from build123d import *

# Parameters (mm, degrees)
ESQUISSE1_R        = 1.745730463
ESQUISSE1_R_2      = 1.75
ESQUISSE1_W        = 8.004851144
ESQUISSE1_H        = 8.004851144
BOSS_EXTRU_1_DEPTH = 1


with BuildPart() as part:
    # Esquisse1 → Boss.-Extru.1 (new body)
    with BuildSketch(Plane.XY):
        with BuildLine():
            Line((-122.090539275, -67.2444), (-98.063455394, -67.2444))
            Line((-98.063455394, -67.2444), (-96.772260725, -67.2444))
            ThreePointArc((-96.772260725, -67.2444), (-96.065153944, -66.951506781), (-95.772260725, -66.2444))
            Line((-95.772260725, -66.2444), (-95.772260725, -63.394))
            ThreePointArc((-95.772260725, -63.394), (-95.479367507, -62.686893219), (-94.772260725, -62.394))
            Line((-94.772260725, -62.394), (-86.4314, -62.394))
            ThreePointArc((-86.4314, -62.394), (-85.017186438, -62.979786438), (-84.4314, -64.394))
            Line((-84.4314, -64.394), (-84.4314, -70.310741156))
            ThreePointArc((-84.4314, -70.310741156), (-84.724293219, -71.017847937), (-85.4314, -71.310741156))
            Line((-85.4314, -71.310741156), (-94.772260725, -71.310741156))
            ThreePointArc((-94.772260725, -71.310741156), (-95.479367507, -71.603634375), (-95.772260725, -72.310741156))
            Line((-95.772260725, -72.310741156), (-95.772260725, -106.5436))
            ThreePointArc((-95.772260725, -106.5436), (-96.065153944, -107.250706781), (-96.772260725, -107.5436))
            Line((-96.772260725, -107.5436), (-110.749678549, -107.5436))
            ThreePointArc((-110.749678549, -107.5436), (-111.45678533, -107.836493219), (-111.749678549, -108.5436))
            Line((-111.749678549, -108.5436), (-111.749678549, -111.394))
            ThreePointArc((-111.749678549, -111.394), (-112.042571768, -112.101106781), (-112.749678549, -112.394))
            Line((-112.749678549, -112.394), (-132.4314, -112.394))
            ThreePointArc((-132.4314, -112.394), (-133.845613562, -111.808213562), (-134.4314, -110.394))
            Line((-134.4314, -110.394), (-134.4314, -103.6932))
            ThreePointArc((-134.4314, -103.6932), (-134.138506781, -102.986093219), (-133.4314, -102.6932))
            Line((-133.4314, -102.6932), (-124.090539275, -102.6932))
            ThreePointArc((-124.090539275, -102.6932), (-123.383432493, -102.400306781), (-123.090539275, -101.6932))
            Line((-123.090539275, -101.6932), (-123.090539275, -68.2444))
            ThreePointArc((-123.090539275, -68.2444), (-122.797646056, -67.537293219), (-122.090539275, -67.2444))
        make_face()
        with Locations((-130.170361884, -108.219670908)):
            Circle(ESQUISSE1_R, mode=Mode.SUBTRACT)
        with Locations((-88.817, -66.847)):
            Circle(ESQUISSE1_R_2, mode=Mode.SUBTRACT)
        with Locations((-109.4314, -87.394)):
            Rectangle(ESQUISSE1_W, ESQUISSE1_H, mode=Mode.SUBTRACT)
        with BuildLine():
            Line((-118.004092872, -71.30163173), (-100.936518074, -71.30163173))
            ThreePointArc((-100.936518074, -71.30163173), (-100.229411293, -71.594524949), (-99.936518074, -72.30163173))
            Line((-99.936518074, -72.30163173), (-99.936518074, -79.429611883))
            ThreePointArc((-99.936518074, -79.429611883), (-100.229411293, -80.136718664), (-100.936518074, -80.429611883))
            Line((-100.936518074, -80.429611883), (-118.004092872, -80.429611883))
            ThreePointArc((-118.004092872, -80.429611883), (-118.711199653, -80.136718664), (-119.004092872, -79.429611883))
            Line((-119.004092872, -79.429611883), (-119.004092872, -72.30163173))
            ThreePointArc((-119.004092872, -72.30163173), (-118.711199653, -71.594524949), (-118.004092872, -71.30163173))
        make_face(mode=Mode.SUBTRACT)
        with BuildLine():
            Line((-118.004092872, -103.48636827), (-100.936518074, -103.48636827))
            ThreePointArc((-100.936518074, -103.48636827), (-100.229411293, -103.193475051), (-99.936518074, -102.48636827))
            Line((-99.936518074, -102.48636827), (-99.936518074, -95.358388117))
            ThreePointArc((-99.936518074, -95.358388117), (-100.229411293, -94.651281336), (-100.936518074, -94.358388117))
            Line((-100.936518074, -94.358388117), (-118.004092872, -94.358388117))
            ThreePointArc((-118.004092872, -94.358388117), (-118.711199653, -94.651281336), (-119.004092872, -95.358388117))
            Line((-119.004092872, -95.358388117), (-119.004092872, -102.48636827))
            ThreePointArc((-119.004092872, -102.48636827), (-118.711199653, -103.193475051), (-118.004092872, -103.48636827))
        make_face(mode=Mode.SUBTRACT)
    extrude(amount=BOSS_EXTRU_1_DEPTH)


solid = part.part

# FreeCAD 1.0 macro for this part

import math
import FreeCAD as App
import Part
import Sketcher


def add_polygon(sketch, points):
    """Adds a closed chain of lines whose ends are joined by coincident constraints."""
    first, n = sketch.GeometryCount, len(points)
    for a, b in zip(points, points[1:] + points[:1]):
        sketch.addGeometry(Part.LineSegment(App.Vector(*a, 0), App.Vector(*b, 0)), False)
    for i in range(n):
        sketch.addConstraint(Sketcher.Constraint("Coincident", first + i, 2, first + (i + 1) % n, 1))

doc = App.newDocument("Part")
body = doc.addObject("PartDesign::Body", "Body")

sketch1 = body.newObject("Sketcher::SketchObject", "Sketch")
sketch1.AttachmentSupport = (doc.getObject("XY_Plane"), [""])
sketch1.MapMode = "FlatFace"
sketch1.addGeometry(Part.LineSegment(App.Vector(-96.8, -67.2, 0), App.Vector(-122.1, -67.2, 0)), False)
sketch1.addGeometry(Part.ArcOfCircle(Part.Circle(App.Vector(-122.1, -68.2, 0), App.Vector(0, 0, 1), 1), math.radians(90), math.radians(180)), False)
sketch1.addGeometry(Part.LineSegment(App.Vector(-123.1, -68.2, 0), App.Vector(-123.1, -101.7, 0)), False)
sketch1.addGeometry(Part.ArcOfCircle(Part.Circle(App.Vector(-124.1, -101.7, 0), App.Vector(0, 0, 1), 1), math.radians(-90), math.radians(0)), False)
sketch1.addGeometry(Part.LineSegment(App.Vector(-124.1, -102.7, 0), App.Vector(-133.4, -102.7, 0)), False)
sketch1.addGeometry(Part.ArcOfCircle(Part.Circle(App.Vector(-133.4, -103.7, 0), App.Vector(0, 0, 1), 1), math.radians(90), math.radians(180)), False)
sketch1.addGeometry(Part.LineSegment(App.Vector(-134.4, -103.7, 0), App.Vector(-134.4, -110.4, 0)), False)
sketch1.addGeometry(Part.ArcOfCircle(Part.Circle(App.Vector(-132.4, -110.4, 0), App.Vector(0, 0, 1), 2), math.radians(-180), math.radians(-90)), False)
sketch1.addGeometry(Part.LineSegment(App.Vector(-132.4, -112.4, 0), App.Vector(-112.7, -112.4, 0)), False)
sketch1.addGeometry(Part.ArcOfCircle(Part.Circle(App.Vector(-112.7, -111.4, 0), App.Vector(0, 0, 1), 1), math.radians(-90), math.radians(0)), False)
sketch1.addGeometry(Part.LineSegment(App.Vector(-111.7, -111.4, 0), App.Vector(-111.7, -108.5, 0)), False)
sketch1.addGeometry(Part.ArcOfCircle(Part.Circle(App.Vector(-110.7, -108.5, 0), App.Vector(0, 0, 1), 1), math.radians(90), math.radians(180)), False)
sketch1.addGeometry(Part.LineSegment(App.Vector(-110.7, -107.5, 0), App.Vector(-96.8, -107.5, 0)), False)
sketch1.addGeometry(Part.ArcOfCircle(Part.Circle(App.Vector(-96.8, -106.5, 0), App.Vector(0, 0, 1), 1), math.radians(-90), math.radians(0)), False)
sketch1.addGeometry(Part.LineSegment(App.Vector(-95.8, -106.5, 0), App.Vector(-95.8, -72.3, 0)), False)
sketch1.addGeometry(Part.ArcOfCircle(Part.Circle(App.Vector(-94.8, -72.3, 0), App.Vector(0, 0, 1), 1), math.radians(90), math.radians(180)), False)
sketch1.addGeometry(Part.LineSegment(App.Vector(-94.8, -71.3, 0), App.Vector(-85.4, -71.3, 0)), False)
sketch1.addGeometry(Part.ArcOfCircle(Part.Circle(App.Vector(-85.4, -70.3, 0), App.Vector(0, 0, 1), 1), math.radians(-90), math.radians(0)), False)
sketch1.addGeometry(Part.LineSegment(App.Vector(-84.4, -70.3, 0), App.Vector(-84.4, -64.4, 0)), False)
sketch1.addGeometry(Part.ArcOfCircle(Part.Circle(App.Vector(-86.4, -64.4, 0), App.Vector(0, 0, 1), 2), math.radians(0), math.radians(90)), False)
sketch1.addGeometry(Part.LineSegment(App.Vector(-86.4, -62.4, 0), App.Vector(-94.8, -62.4, 0)), False)
sketch1.addGeometry(Part.ArcOfCircle(Part.Circle(App.Vector(-94.8, -63.4, 0), App.Vector(0, 0, 1), 1), math.radians(90), math.radians(180)), False)
sketch1.addGeometry(Part.LineSegment(App.Vector(-95.8, -63.4, 0), App.Vector(-95.8, -66.2, 0)), False)
sketch1.addGeometry(Part.ArcOfCircle(Part.Circle(App.Vector(-96.8, -66.2, 0), App.Vector(0, 0, 1), 1), math.radians(-90), math.radians(0)), False)
sketch1.addGeometry(Part.ArcOfCircle(Part.Circle(App.Vector(-118, -102.5, 0), App.Vector(0, 0, 1), 1), math.radians(-180), math.radians(-90)), False)
sketch1.addGeometry(Part.LineSegment(App.Vector(-119, -102.5, 0), App.Vector(-119, -95.4, 0)), False)
sketch1.addGeometry(Part.ArcOfCircle(Part.Circle(App.Vector(-118, -95.4, 0), App.Vector(0, 0, 1), 1), math.radians(90), math.radians(180)), False)
sketch1.addGeometry(Part.LineSegment(App.Vector(-118, -94.4, 0), App.Vector(-100.9, -94.4, 0)), False)
sketch1.addGeometry(Part.ArcOfCircle(Part.Circle(App.Vector(-100.9, -95.4, 0), App.Vector(0, 0, 1), 1), math.radians(0), math.radians(90)), False)
sketch1.addGeometry(Part.LineSegment(App.Vector(-99.9, -95.4, 0), App.Vector(-99.9, -102.5, 0)), False)
sketch1.addGeometry(Part.ArcOfCircle(Part.Circle(App.Vector(-100.9, -102.5, 0), App.Vector(0, 0, 1), 1), math.radians(-90), math.radians(0)), False)
sketch1.addGeometry(Part.LineSegment(App.Vector(-100.9, -103.5, 0), App.Vector(-118, -103.5, 0)), False)
sketch1.addGeometry(Part.Circle(App.Vector(-130.2, -108.2, 0), App.Vector(0, 0, 1), 1.7), False)
add_polygon(sketch1, [(-113.4, -91.4), (-113.4, -83.4), (-105.4, -83.4), (-105.4, -91.4)])
sketch1.addGeometry(Part.Circle(App.Vector(-88.8, -66.8, 0), App.Vector(0, 0, 1), 1.8), False)
sketch1.addGeometry(Part.LineSegment(App.Vector(-118, -71.3, 0), App.Vector(-100.9, -71.3, 0)), False)
sketch1.addGeometry(Part.ArcOfCircle(Part.Circle(App.Vector(-100.9, -72.3, 0), App.Vector(0, 0, 1), 1), math.radians(0), math.radians(90)), False)
sketch1.addGeometry(Part.LineSegment(App.Vector(-99.9, -72.3, 0), App.Vector(-99.9, -79.4, 0)), False)
sketch1.addGeometry(Part.ArcOfCircle(Part.Circle(App.Vector(-100.9, -79.4, 0), App.Vector(0, 0, 1), 1), math.radians(-90), math.radians(0)), False)
sketch1.addGeometry(Part.LineSegment(App.Vector(-100.9, -80.4, 0), App.Vector(-118, -80.4, 0)), False)
sketch1.addGeometry(Part.ArcOfCircle(Part.Circle(App.Vector(-118, -79.4, 0), App.Vector(0, 0, 1), 1), math.radians(-180), math.radians(-90)), False)
sketch1.addGeometry(Part.LineSegment(App.Vector(-119, -79.4, 0), App.Vector(-119, -72.3, 0)), False)
sketch1.addGeometry(Part.ArcOfCircle(Part.Circle(App.Vector(-118, -72.3, 0), App.Vector(0, 0, 1), 1), math.radians(90), math.radians(180)), False)
sketch1.addConstraint([
    Sketcher.Constraint("Tangent", 0, 2, 1, 1),
    Sketcher.Constraint("Tangent", 1, 2, 2, 1),
    Sketcher.Constraint("Tangent", 2, 2, 3, 2),
    Sketcher.Constraint("Tangent", 3, 1, 4, 1),
    Sketcher.Constraint("Tangent", 4, 2, 5, 1),
    Sketcher.Constraint("Tangent", 5, 2, 6, 1),
    Sketcher.Constraint("Tangent", 6, 2, 7, 1),
    Sketcher.Constraint("Tangent", 7, 2, 8, 1),
    Sketcher.Constraint("Tangent", 8, 2, 9, 1),
    Sketcher.Constraint("Tangent", 9, 2, 10, 1),
    Sketcher.Constraint("Tangent", 10, 2, 11, 2),
    Sketcher.Constraint("Tangent", 11, 1, 12, 1),
    Sketcher.Constraint("Tangent", 12, 2, 13, 1),
    Sketcher.Constraint("Tangent", 13, 2, 14, 1),
    Sketcher.Constraint("Tangent", 14, 2, 15, 2),
    Sketcher.Constraint("Tangent", 15, 1, 16, 1),
    Sketcher.Constraint("Tangent", 16, 2, 17, 1),
    Sketcher.Constraint("Tangent", 17, 2, 18, 1),
    Sketcher.Constraint("Tangent", 18, 2, 19, 1),
    Sketcher.Constraint("Tangent", 19, 2, 20, 1),
    Sketcher.Constraint("Tangent", 20, 2, 21, 1),
    Sketcher.Constraint("Tangent", 21, 2, 22, 1),
    Sketcher.Constraint("Tangent", 22, 2, 23, 2),
    Sketcher.Constraint("Tangent", 23, 1, 0, 1),
    Sketcher.Constraint("Tangent", 24, 1, 25, 1),
    Sketcher.Constraint("Tangent", 25, 2, 26, 2),
    Sketcher.Constraint("Tangent", 26, 1, 27, 1),
    Sketcher.Constraint("Tangent", 27, 2, 28, 2),
    Sketcher.Constraint("Tangent", 28, 1, 29, 1),
    Sketcher.Constraint("Tangent", 29, 2, 30, 2),
    Sketcher.Constraint("Tangent", 30, 1, 31, 1),
    Sketcher.Constraint("Tangent", 31, 2, 24, 2),
    Sketcher.Constraint("Tangent", 38, 2, 39, 2),
    Sketcher.Constraint("Tangent", 39, 1, 40, 1),
    Sketcher.Constraint("Tangent", 40, 2, 41, 2),
    Sketcher.Constraint("Tangent", 41, 1, 42, 1),
    Sketcher.Constraint("Tangent", 42, 2, 43, 2),
    Sketcher.Constraint("Tangent", 43, 1, 44, 1),
    Sketcher.Constraint("Tangent", 44, 2, 45, 2),
    Sketcher.Constraint("Tangent", 45, 1, 38, 1),
    Sketcher.Constraint("Horizontal", 0),
    Sketcher.Constraint("Vertical", 2),
    Sketcher.Constraint("Horizontal", 4),
    Sketcher.Constraint("Vertical", 6),
    Sketcher.Constraint("Horizontal", 8),
    Sketcher.Constraint("Vertical", 10),
    Sketcher.Constraint("Horizontal", 12),
    Sketcher.Constraint("Vertical", 14),
    Sketcher.Constraint("Horizontal", 16),
    Sketcher.Constraint("Vertical", 18),
    Sketcher.Constraint("Horizontal", 20),
    Sketcher.Constraint("Vertical", 22),
    Sketcher.Constraint("Vertical", 25),
    Sketcher.Constraint("Horizontal", 27),
    Sketcher.Constraint("Vertical", 29),
    Sketcher.Constraint("Horizontal", 31),
    Sketcher.Constraint("Vertical", 33),
    Sketcher.Constraint("Horizontal", 34),
    Sketcher.Constraint("Vertical", 35),
    Sketcher.Constraint("Horizontal", 36),
    Sketcher.Constraint("Horizontal", 38),
    Sketcher.Constraint("Vertical", 40),
    Sketcher.Constraint("Horizontal", 42),
    Sketcher.Constraint("Vertical", 44),
    Sketcher.Constraint("Equal", 1, 3),
    Sketcher.Constraint("Equal", 3, 5),
    Sketcher.Constraint("Equal", 5, 9),
    Sketcher.Constraint("Equal", 9, 11),
    Sketcher.Constraint("Equal", 11, 13),
    Sketcher.Constraint("Equal", 13, 15),
    Sketcher.Constraint("Equal", 15, 17),
    Sketcher.Constraint("Equal", 7, 19),
    Sketcher.Constraint("Equal", 17, 21),
    Sketcher.Constraint("Equal", 21, 23),
    Sketcher.Constraint("Equal", 23, 24),
    Sketcher.Constraint("Equal", 24, 26),
    Sketcher.Constraint("Equal", 26, 28),
    Sketcher.Constraint("Equal", 28, 30),
    Sketcher.Constraint("Equal", 30, 39),
    Sketcher.Constraint("Equal", 39, 41),
    Sketcher.Constraint("Equal", 41, 43),
    Sketcher.Constraint("Equal", 43, 45),
    Sketcher.Constraint("Vertical", 15, 3, 21, 3),
    Sketcher.Constraint("Vertical", 30, 3, 39, 3),
    Sketcher.Constraint("Vertical", 26, 3, 43, 3),
    Sketcher.Constraint("Equal", 4, 16),
    Sketcher.Constraint("Equal", 10, 22),
    Sketcher.Constraint("Equal", 36, 33),
    Sketcher.Constraint("Equal", 29, 40),
    Sketcher.Constraint("Radius", 1, 1.0),
    Sketcher.Constraint("Radius", 7, 2.0),
    Sketcher.Constraint("Diameter", 37, 3.5),
    Sketcher.Constraint("Diameter", 32, 3.491461),
    Sketcher.Constraint("DistanceY", 2, 2, 2, 1, 33.4488),
    Sketcher.Constraint("DistanceY", 6, 2, 6, 1, 6.7008),
    Sketcher.Constraint("DistanceY", 10, 1, 10, 2, 2.8504),
    Sketcher.Constraint("DistanceY", 7, 3, -1, 1, 110.394),
    Sketcher.Constraint("DistanceX", 37, 3, -1, 1, 88.817),
    Sketcher.Constraint("DistanceY", 37, 3, -1, 1, 66.847),
    Sketcher.Constraint("DistanceX", 0, 2, 0, 1, 25.318279),
    Sketcher.Constraint("DistanceX", 4, 2, 4, 1, 9.340861),
    Sketcher.Constraint("DistanceX", 8, 1, 8, 2, 19.681721),
    Sketcher.Constraint("DistanceX", 34, 1, 34, 2, 8.004851),
    Sketcher.Constraint("DistanceY", 14, 1, 14, 2, 34.232859),
    Sketcher.Constraint("DistanceY", 25, 1, 25, 2, 7.12798),
    Sketcher.Constraint("DistanceX", 5, 3, -1, 1, 133.4314),
    Sketcher.Constraint("DistanceX", 27, 1, 27, 2, 17.067575),
    Sketcher.Constraint("DistanceY", 24, 3, -1, 1, 102.486368),
    Sketcher.Constraint("DistanceX", 28, 3, -1, 1, 100.936518),
    Sketcher.Constraint("DistanceX", 32, 3, -1, 1, 130.170362),
    Sketcher.Constraint("DistanceY", 32, 3, -1, 1, 108.219671),
    Sketcher.Constraint("DistanceY", 39, 3, -1, 1, 72.301632),
    Sketcher.Constraint("DistanceX", 33, 2, -1, 1, 113.433826),
    Sketcher.Constraint("DistanceY", 33, 2, -1, 1, 83.391574),
])
pad1 = body.newObject("PartDesign::Pad", "Pad")
pad1.Profile = sketch1
pad1.Length = 1

doc.recompute()
